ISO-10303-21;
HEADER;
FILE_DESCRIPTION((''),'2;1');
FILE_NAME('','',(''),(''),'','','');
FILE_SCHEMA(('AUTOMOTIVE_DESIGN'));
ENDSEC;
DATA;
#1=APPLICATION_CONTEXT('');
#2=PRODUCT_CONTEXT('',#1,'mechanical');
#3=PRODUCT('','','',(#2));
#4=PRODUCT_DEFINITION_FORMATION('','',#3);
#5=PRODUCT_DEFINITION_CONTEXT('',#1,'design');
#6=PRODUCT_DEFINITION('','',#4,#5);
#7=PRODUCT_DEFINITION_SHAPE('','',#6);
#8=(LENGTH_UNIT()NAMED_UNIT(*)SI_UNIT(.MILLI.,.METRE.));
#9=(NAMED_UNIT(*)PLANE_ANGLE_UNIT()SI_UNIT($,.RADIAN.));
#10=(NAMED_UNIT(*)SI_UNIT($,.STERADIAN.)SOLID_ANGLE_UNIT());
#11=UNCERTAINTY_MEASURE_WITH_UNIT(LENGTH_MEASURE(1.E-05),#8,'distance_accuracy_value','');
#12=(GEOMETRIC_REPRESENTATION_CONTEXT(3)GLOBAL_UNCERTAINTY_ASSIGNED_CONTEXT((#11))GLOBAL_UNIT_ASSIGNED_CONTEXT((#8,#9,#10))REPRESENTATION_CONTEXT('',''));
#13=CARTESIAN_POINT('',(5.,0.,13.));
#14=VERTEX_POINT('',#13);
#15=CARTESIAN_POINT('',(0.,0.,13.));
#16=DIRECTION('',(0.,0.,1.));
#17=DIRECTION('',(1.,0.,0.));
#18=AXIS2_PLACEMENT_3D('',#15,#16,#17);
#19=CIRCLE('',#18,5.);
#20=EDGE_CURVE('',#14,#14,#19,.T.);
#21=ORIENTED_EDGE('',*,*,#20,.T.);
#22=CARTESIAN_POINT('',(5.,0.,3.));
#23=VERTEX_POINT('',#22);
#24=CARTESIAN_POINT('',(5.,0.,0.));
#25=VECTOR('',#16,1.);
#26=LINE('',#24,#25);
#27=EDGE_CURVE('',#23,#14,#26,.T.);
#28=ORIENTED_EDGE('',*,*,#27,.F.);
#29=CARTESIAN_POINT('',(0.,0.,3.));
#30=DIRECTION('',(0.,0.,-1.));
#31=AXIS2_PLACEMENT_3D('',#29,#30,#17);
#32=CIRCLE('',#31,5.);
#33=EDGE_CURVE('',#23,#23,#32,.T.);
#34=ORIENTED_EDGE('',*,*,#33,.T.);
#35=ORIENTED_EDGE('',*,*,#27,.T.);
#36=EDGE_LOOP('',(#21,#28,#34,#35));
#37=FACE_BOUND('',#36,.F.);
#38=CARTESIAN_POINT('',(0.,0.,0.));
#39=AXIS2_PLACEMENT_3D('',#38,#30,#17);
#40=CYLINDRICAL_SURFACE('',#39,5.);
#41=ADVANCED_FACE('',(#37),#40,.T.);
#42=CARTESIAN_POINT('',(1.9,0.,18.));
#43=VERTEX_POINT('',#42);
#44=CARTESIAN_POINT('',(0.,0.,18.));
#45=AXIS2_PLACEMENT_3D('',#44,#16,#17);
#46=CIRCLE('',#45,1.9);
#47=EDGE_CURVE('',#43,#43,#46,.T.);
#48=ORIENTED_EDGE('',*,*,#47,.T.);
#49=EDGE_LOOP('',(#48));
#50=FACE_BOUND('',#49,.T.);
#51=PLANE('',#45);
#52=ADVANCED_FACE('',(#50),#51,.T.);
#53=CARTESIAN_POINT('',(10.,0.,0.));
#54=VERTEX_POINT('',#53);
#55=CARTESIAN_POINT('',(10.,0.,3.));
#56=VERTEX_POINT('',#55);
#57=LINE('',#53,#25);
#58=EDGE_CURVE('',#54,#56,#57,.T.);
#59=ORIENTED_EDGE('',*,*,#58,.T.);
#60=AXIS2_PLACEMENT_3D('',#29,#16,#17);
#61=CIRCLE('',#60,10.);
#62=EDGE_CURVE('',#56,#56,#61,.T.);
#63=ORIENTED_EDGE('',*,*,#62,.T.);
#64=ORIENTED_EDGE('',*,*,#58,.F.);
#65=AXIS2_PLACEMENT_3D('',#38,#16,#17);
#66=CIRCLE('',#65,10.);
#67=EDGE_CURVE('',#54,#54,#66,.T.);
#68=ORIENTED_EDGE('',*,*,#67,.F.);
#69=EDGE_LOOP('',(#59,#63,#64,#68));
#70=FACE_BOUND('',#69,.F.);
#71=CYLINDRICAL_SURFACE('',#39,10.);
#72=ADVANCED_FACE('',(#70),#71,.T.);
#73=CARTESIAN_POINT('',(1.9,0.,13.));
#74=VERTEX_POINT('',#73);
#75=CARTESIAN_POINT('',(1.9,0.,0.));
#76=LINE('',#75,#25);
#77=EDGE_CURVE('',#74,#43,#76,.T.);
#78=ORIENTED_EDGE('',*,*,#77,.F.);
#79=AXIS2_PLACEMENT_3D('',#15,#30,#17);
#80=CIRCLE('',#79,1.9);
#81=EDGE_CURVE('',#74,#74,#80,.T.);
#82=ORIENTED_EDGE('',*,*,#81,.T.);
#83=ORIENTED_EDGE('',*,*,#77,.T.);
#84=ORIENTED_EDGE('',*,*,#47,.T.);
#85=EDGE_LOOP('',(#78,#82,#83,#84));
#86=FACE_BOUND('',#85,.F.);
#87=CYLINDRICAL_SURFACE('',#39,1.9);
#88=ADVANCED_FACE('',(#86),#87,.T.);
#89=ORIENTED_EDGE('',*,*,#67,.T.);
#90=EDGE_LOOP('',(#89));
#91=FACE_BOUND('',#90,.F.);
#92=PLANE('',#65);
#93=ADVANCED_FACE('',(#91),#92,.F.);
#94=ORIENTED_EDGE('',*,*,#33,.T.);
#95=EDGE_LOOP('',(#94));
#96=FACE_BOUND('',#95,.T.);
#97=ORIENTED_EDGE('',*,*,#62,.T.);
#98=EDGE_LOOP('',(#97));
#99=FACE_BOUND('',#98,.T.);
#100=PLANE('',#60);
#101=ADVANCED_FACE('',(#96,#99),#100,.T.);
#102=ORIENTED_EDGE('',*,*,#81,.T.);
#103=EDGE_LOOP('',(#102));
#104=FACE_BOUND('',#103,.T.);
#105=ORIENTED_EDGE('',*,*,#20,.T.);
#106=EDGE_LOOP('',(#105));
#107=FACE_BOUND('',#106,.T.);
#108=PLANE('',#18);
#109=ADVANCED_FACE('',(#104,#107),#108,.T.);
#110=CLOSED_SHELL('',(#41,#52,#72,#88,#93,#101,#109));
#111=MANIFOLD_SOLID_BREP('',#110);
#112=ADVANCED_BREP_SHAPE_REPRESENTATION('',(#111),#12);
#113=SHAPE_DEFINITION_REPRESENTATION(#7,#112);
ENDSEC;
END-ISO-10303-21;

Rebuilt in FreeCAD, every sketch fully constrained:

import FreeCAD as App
import Part
import Sketcher

V = App.Vector

doc = App.newDocument("Part")
body = doc.addObject("PartDesign::Body", "Body")

# Sketch on XY plane
sketch1 = body.newObject("Sketcher::SketchObject", "Sketch")
sketch1.AttachmentSupport = (doc.getObject("XY_Plane"), [""])
sketch1.MapMode = "FlatFace"
sketch1.addGeometry(Part.Circle(V(0, 0, 0), V(0, 0, 1), 10), False)
sketch1.addConstraint([
    Sketcher.Constraint("Coincident", 0, 3, -1, 1),
    Sketcher.Constraint("Diameter", 0, 20.0),
])
pad1 = body.newObject("PartDesign::Pad", "Pad")
pad1.Profile = sketch1
pad1.Length = 3

# Sketch on XY plane
sketch2 = body.newObject("Sketcher::SketchObject", "Sketch001")
sketch2.AttachmentSupport = (doc.getObject("XY_Plane"), [""])
sketch2.MapMode = "FlatFace"
sketch2.addGeometry(Part.Circle(V(0, 0, 0), V(0, 0, 1), 5), False)
sketch2.addConstraint([
    Sketcher.Constraint("Coincident", 0, 3, -1, 1),
    Sketcher.Constraint("Diameter", 0, 10.0),
])
pad2 = body.newObject("PartDesign::Pad", "Pad001")
pad2.Profile = sketch2
pad2.Length = 13

# Sketch on XY plane
sketch3 = body.newObject("Sketcher::SketchObject", "Sketch002")
sketch3.AttachmentSupport = (doc.getObject("XY_Plane"), [""])
sketch3.MapMode = "FlatFace"
sketch3.addGeometry(Part.Circle(V(0, 0, 0), V(0, 0, 1), 1.9), False)
sketch3.addConstraint([
    Sketcher.Constraint("Coincident", 0, 3, -1, 1),
    Sketcher.Constraint("Diameter", 0, 3.8),
])
pad3 = body.newObject("PartDesign::Pad", "Pad002")
pad3.Profile = sketch3
pad3.Length = 18

doc.recompute()
